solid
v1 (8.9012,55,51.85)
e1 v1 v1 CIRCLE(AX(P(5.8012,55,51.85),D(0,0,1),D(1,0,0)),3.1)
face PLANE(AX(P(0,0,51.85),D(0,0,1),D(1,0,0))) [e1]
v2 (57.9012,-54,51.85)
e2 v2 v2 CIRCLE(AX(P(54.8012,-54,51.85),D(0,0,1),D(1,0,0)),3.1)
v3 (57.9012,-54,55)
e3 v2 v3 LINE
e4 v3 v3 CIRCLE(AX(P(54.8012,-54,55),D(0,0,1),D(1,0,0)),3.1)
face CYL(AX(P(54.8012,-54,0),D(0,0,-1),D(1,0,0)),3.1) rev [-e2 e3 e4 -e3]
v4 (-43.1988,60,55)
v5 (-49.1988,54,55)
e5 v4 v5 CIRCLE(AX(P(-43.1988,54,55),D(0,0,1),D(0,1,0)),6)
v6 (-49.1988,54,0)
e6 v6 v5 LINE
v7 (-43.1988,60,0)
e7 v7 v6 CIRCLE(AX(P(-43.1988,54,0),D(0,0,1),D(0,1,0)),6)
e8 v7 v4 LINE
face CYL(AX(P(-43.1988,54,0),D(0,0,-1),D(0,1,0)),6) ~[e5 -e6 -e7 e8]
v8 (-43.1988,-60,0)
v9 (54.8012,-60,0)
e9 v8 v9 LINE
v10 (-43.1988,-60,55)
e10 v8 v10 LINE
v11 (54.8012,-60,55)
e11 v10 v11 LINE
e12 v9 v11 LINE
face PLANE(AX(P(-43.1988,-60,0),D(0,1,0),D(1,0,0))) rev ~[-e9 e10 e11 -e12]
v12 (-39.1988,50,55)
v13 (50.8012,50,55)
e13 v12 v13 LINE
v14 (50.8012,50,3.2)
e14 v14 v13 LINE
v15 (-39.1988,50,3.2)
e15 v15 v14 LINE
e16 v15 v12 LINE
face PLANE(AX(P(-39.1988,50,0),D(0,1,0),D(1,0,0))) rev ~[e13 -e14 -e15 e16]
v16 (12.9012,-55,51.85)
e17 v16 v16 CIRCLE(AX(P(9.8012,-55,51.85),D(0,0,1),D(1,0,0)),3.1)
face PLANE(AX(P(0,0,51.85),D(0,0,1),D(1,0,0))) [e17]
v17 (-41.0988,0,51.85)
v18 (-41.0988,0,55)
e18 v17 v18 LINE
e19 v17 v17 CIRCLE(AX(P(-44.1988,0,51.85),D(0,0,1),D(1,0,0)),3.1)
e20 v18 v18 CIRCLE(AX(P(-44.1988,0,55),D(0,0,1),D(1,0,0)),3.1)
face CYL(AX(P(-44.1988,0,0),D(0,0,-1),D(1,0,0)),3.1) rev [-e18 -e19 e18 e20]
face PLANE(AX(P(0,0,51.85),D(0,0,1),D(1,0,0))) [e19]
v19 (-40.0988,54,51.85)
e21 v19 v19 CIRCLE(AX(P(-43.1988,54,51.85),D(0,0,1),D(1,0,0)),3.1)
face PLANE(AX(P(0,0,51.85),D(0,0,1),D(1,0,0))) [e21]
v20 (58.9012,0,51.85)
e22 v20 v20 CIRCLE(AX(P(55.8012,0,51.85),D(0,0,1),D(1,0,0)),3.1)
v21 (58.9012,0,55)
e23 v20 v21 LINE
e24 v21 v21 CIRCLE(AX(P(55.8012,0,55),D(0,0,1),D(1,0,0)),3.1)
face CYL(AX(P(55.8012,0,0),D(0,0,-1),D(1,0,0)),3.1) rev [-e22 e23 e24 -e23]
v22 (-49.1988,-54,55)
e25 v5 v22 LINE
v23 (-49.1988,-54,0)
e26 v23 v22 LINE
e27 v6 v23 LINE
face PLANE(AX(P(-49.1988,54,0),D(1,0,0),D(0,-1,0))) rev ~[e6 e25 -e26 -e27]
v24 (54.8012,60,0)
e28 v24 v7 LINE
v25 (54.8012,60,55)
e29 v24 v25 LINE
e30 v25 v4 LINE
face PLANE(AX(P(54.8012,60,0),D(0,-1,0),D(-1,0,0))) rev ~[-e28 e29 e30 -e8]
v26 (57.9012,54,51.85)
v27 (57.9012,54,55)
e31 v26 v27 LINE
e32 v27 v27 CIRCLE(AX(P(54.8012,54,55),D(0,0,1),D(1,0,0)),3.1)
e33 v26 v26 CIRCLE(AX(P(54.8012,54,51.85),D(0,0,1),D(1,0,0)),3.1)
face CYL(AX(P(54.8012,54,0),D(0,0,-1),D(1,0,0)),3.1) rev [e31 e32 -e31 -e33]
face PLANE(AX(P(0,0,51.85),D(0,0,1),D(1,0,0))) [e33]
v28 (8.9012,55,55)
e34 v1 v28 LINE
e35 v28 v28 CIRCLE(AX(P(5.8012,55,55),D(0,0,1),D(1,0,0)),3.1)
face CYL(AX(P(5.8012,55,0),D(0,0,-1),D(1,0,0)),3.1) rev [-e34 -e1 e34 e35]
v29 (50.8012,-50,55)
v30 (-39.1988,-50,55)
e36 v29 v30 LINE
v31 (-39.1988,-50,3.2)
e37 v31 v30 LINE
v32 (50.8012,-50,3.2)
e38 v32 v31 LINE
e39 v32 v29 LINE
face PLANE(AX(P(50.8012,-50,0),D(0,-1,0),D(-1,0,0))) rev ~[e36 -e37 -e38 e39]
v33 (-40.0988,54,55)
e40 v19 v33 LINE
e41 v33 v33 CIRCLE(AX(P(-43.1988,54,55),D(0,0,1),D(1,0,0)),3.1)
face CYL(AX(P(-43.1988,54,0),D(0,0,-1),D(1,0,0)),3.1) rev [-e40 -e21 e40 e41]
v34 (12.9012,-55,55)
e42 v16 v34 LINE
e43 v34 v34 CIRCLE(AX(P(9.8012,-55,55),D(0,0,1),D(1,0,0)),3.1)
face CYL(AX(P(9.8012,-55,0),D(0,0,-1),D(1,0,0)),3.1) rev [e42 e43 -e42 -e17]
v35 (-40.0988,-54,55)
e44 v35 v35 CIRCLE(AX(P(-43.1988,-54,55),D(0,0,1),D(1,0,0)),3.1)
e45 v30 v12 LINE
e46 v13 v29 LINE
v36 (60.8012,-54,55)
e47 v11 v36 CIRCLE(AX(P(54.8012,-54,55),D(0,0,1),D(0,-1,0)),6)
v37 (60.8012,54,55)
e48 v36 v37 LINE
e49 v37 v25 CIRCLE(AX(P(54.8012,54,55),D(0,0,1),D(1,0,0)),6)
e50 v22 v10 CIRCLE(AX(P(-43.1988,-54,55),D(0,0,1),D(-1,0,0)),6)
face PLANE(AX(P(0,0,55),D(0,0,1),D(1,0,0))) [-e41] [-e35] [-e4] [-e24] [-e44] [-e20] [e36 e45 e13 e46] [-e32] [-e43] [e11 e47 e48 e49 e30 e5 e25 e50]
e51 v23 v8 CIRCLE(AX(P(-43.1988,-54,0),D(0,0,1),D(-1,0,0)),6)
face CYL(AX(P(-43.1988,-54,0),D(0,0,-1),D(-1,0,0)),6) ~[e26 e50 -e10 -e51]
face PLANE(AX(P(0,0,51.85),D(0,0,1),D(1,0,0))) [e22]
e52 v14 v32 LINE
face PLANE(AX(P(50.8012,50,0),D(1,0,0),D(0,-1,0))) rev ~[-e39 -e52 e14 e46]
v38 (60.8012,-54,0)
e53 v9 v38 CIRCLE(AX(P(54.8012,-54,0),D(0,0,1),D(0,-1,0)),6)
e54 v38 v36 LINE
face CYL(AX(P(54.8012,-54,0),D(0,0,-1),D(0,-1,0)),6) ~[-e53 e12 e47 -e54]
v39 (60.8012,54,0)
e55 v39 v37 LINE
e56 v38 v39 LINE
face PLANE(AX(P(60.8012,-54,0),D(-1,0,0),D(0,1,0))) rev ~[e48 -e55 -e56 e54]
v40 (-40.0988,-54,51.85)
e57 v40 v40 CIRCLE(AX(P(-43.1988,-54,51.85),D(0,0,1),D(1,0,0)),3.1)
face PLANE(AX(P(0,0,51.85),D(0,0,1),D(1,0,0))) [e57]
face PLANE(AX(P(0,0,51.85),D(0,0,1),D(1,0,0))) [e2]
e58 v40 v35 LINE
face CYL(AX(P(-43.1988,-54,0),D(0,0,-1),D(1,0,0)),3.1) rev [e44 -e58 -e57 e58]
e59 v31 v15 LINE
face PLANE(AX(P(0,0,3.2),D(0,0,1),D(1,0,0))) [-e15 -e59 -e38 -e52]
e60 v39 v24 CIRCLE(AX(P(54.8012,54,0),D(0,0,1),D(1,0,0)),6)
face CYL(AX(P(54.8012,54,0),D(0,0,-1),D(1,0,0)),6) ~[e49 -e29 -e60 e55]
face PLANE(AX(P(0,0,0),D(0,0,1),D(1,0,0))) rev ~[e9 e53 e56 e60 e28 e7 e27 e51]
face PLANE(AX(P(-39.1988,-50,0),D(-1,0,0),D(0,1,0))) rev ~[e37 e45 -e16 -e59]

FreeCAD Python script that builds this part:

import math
import FreeCAD as App
import Part
import Sketcher

V = App.Vector

doc = App.newDocument("Part")
body = doc.addObject("PartDesign::Body", "Body")

# Sketch on XY plane
sketch1 = doc.addObject("Sketcher::SketchObject", "Sketch")
body.addObject(sketch1)
sketch1.AttachmentSupport = (doc.XY_Plane, [""])
sketch1.MapMode = "FlatFace"
sketch1.addGeometry(Part.ArcOfCircle(Part.Circle(V(-43.2, -54, 0), V(0, 0, 1), 6), math.radians(180), math.radians(270)), False)
sketch1.addGeometry(Part.LineSegment(V(-43.2, -60, 0), V(54.8, -60, 0)), False)
sketch1.addGeometry(Part.ArcOfCircle(Part.Circle(V(54.8, -54, 0), V(0, 0, 1), 6), math.radians(-90), math.radians(0)), False)
sketch1.addGeometry(Part.LineSegment(V(60.8, -54, 0), V(60.8, 54, 0)), False)
sketch1.addGeometry(Part.ArcOfCircle(Part.Circle(V(54.8, 54, 0), V(0, 0, 1), 6), math.radians(0), math.radians(90)), False)
sketch1.addGeometry(Part.LineSegment(V(54.8, 60, 0), V(-43.2, 60, 0)), False)
sketch1.addGeometry(Part.ArcOfCircle(Part.Circle(V(-43.2, 54, 0), V(0, 0, 1), 6), math.radians(90), math.radians(180)), False)
sketch1.addGeometry(Part.LineSegment(V(-49.2, 54, 0), V(-49.2, -54, 0)), False)
sketch1.addGeometry(Part.Circle(V(-43.2, -54, 0), V(0, 0, 1), 3.1), False)
sketch1.addGeometry(Part.Circle(V(9.8, -55, 0), V(0, 0, 1), 3.1), False)
sketch1.addGeometry(Part.Circle(V(54.8, -54, 0), V(0, 0, 1), 3.1), False)
sketch1.addGeometry(Part.Circle(V(-44.2, 0, 0), V(0, 0, 1), 3.1), False)
sketch1.addGeometry(Part.Circle(V(-43.2, 54, 0), V(0, 0, 1), 3.1), False)
sketch1.addGeometry(Part.LineSegment(V(-39.2, -50, 0), V(-39.2, 50, 0)), False)
sketch1.addGeometry(Part.LineSegment(V(-39.2, 50, 0), V(50.8, 50, 0)), False)
sketch1.addGeometry(Part.LineSegment(V(50.8, 50, 0), V(50.8, -50, 0)), False)
sketch1.addGeometry(Part.LineSegment(V(50.8, -50, 0), V(-39.2, -50, 0)), False)
sketch1.addGeometry(Part.Circle(V(55.8, 0, 0), V(0, 0, 1), 3.1), False)
sketch1.addGeometry(Part.Circle(V(5.8, 55, 0), V(0, 0, 1), 3.1), False)
sketch1.addGeometry(Part.Circle(V(54.8, 54, 0), V(0, 0, 1), 3.1), False)
sketch1.addConstraint(Sketcher.Constraint("Tangent", 0, 2, 1, 1))
sketch1.addConstraint(Sketcher.Constraint("Tangent", 1, 2, 2, 1))
sketch1.addConstraint(Sketcher.Constraint("Tangent", 2, 2, 3, 1))
sketch1.addConstraint(Sketcher.Constraint("Tangent", 3, 2, 4, 1))
sketch1.addConstraint(Sketcher.Constraint("Tangent", 4, 2, 5, 1))
sketch1.addConstraint(Sketcher.Constraint("Tangent", 5, 2, 6, 1))
sketch1.addConstraint(Sketcher.Constraint("Tangent", 6, 2, 7, 1))
sketch1.addConstraint(Sketcher.Constraint("Tangent", 7, 2, 0, 1))
sketch1.addConstraint(Sketcher.Constraint("Coincident", 13, 2, 14, 1))
sketch1.addConstraint(Sketcher.Constraint("Coincident", 14, 2, 15, 1))
sketch1.addConstraint(Sketcher.Constraint("Coincident", 15, 2, 16, 1))
sketch1.addConstraint(Sketcher.Constraint("Coincident", 16, 2, 13, 1))
sketch1.addConstraint(Sketcher.Constraint("Horizontal", 1))
sketch1.addConstraint(Sketcher.Constraint("Vertical", 3))
sketch1.addConstraint(Sketcher.Constraint("Horizontal", 5))
sketch1.addConstraint(Sketcher.Constraint("Vertical", 7))
sketch1.addConstraint(Sketcher.Constraint("Vertical", 13))
sketch1.addConstraint(Sketcher.Constraint("Horizontal", 14))
sketch1.addConstraint(Sketcher.Constraint("Vertical", 15))
sketch1.addConstraint(Sketcher.Constraint("Horizontal", 16))
sketch1.addConstraint(Sketcher.Constraint("Coincident", 8, 3, 0, 3))
sketch1.addConstraint(Sketcher.Constraint("Coincident", 10, 3, 2, 3))
sketch1.addConstraint(Sketcher.Constraint("Coincident", 12, 3, 6, 3))
sketch1.addConstraint(Sketcher.Constraint("Coincident", 19, 3, 4, 3))
sketch1.addConstraint(Sketcher.Constraint("Equal", 0, 2))
sketch1.addConstraint(Sketcher.Constraint("Equal", 2, 4))
sketch1.addConstraint(Sketcher.Constraint("Equal", 4, 6))
sketch1.addConstraint(Sketcher.Constraint("Equal", 8, 9))
sketch1.addConstraint(Sketcher.Constraint("Equal", 9, 10))
sketch1.addConstraint(Sketcher.Constraint("Equal", 10, 11))
sketch1.addConstraint(Sketcher.Constraint("Equal", 11, 12))
sketch1.addConstraint(Sketcher.Constraint("Equal", 12, 17))
sketch1.addConstraint(Sketcher.Constraint("Equal", 17, 18))
sketch1.addConstraint(Sketcher.Constraint("Equal", 18, 19))
sketch1.addConstraint(Sketcher.Constraint("PointOnObject", 11, 3, -1))
sketch1.addConstraint(Sketcher.Constraint("PointOnObject", 17, 3, -1))
sketch1.addConstraint(Sketcher.Constraint("Radius", 0, 6.0))
sketch1.addConstraint(Sketcher.Constraint("Diameter", 8, 6.2))
sketch1.addConstraint(Sketcher.Constraint("DistanceX", 14, 1, 14, 2, 90.0))
sketch1.addConstraint(Sketcher.Constraint("DistanceY", 9, 3, -1, 1, 55.0))
sketch1.addConstraint(Sketcher.Constraint("DistanceY", -1, 1, 18, 3, 55.0))
sketch1.addConstraint(Sketcher.Constraint("DistanceY", 0, 2, -1, 1, 60.0))
sketch1.addConstraint(Sketcher.Constraint("DistanceY", -1, 1, 4, 2, 60.0))
sketch1.addConstraint(Sketcher.Constraint("DistanceX", 17, 3, 2, 2, 5.0))
sketch1.addConstraint(Sketcher.Constraint("DistanceX", 18, 3, 3, 2, 55.0))
sketch1.addConstraint(Sketcher.Constraint("DistanceX", 6, 2, 11, 3, 5.0))
sketch1.addConstraint(Sketcher.Constraint("DistanceX", 6, 2, 18, 3, 55.0))
sketch1.addConstraint(Sketcher.Constraint("DistanceX", 7, 2, 9, 3, 59.0))
sketch1.addConstraint(Sketcher.Constraint("DistanceY", 13, 2, 5, 2, 10.0))
sketch1.addConstraint(Sketcher.Constraint("DistanceX", 6, 2, 13, 2, 10.0))
sketch1.addConstraint(Sketcher.Constraint("DistanceY", 1, 2, 15, 2, 10.0))
sketch1.addConstraint(Sketcher.Constraint("DistanceX", 0, 3, -1, 1, 43.1988))
pad1 = doc.addObject("PartDesign::Pad", "Pad")
body.addObject(pad1)
pad1.Profile = sketch1
pad1.Length = 55

# Sketch on XY plane
sketch2 = doc.addObject("Sketcher::SketchObject", "Sketch001")
body.addObject(sketch2)
sketch2.AttachmentSupport = (doc.XY_Plane, [""])
sketch2.MapMode = "FlatFace"
sketch2.addGeometry(Part.LineSegment(V(51, 50, 0), V(-39, 50, 0)), False)
sketch2.addGeometry(Part.LineSegment(V(-39, 50, 0), V(-39, -50, 0)), False)
sketch2.addGeometry(Part.LineSegment(V(-39, -50, 0), V(51, -50, 0)), False)
sketch2.addGeometry(Part.LineSegment(V(51, -50, 0), V(51, 50, 0)), False)
sketch2.addConstraint(Sketcher.Constraint("Coincident", 0, 2, 1, 1))
sketch2.addConstraint(Sketcher.Constraint("Coincident", 1, 2, 2, 1))
sketch2.addConstraint(Sketcher.Constraint("Coincident", 2, 2, 3, 1))
sketch2.addConstraint(Sketcher.Constraint("Coincident", 3, 2, 0, 1))
sketch2.addConstraint(Sketcher.Constraint("Horizontal", 0))
sketch2.addConstraint(Sketcher.Constraint("Vertical", 1))
sketch2.addConstraint(Sketcher.Constraint("Horizontal", 2))
sketch2.addConstraint(Sketcher.Constraint("Vertical", 3))
sketch2.addConstraint(Sketcher.Constraint("DistanceX", 0, 2, 0, 1, 90.0))
sketch2.addConstraint(Sketcher.Constraint("DistanceY", 1, 2, 1, 1, 100.0))
sketch2.addConstraint(Sketcher.Constraint("DistanceY", -1, 1, 0, 2, 50.0))
sketch2.addConstraint(Sketcher.Constraint("DistanceX", 0, 2, -1, 1, 39.1988))
pad2 = doc.addObject("PartDesign::Pad", "Pad001")
body.addObject(pad2)
pad2.Profile = sketch2
pad2.Length = 3.2

# Sketch on XY plane
sketch3 = doc.addObject("Sketcher::SketchObject", "Sketch002")
body.addObject(sketch3)
sketch3.AttachmentSupport = (doc.XY_Plane, [""])
sketch3.MapMode = "FlatFace"
sketch3.addGeometry(Part.Circle(V(9.8, -55, 0), V(0, 0, 1), 3.1), False)
sketch3.addGeometry(Part.Circle(V(54.8, -54, 0), V(0, 0, 1), 3.1), False)
sketch3.addGeometry(Part.Circle(V(-43.2, -54, 0), V(0, 0, 1), 3.1), False)
sketch3.addGeometry(Part.Circle(V(55.8, 0, 0), V(0, 0, 1), 3.1), False)
sketch3.addGeometry(Part.Circle(V(54.8, 54, 0), V(0, 0, 1), 3.1), False)
sketch3.addGeometry(Part.Circle(V(-44.2, 0, 0), V(0, 0, 1), 3.1), False)
sketch3.addGeometry(Part.Circle(V(-43.2, 54, 0), V(0, 0, 1), 3.1), False)
sketch3.addGeometry(Part.Circle(V(5.8, 55, 0), V(0, 0, 1), 3.1), False)
sketch3.addConstraint(Sketcher.Constraint("Equal", 0, 1))
sketch3.addConstraint(Sketcher.Constraint("Equal", 1, 2))
sketch3.addConstraint(Sketcher.Constraint("Equal", 2, 3))
sketch3.addConstraint(Sketcher.Constraint("Equal", 3, 4))
sketch3.addConstraint(Sketcher.Constraint("Equal", 4, 5))
sketch3.addConstraint(Sketcher.Constraint("Equal", 5, 6))
sketch3.addConstraint(Sketcher.Constraint("Equal", 6, 7))
sketch3.addConstraint(Sketcher.Constraint("Symmetric", 1, 3, 4, 3, -1))
sketch3.addConstraint(Sketcher.Constraint("Symmetric", 2, 3, 6, 3, -1))
sketch3.addConstraint(Sketcher.Constraint("PointOnObject", 3, 3, -1))
sketch3.addConstraint(Sketcher.Constraint("PointOnObject", 5, 3, -1))
sketch3.addConstraint(Sketcher.Constraint("Horizontal", 1, 3, 2, 3))
sketch3.addConstraint(Sketcher.Constraint("Diameter", 0, 6.2))
sketch3.addConstraint(Sketcher.Constraint("DistanceY", 0, 3, -1, 1, 55.0))
sketch3.addConstraint(Sketcher.Constraint("DistanceY", -1, 1, 7, 3, 55.0))
sketch3.addConstraint(Sketcher.Constraint("DistanceY", 1, 3, -1, 1, 54.0))
sketch3.addConstraint(Sketcher.Constraint("DistanceX", 0, 3, 1, 3, 45.0))
sketch3.addConstraint(Sketcher.Constraint("DistanceX", 2, 3, 0, 3, 53.0))
sketch3.addConstraint(Sketcher.Constraint("DistanceX", 1, 3, 3, 3, 1.0))
sketch3.addConstraint(Sketcher.Constraint("DistanceX", 5, 3, 2, 3, 1.0))
sketch3.addConstraint(Sketcher.Constraint("DistanceX", 7, 3, 4, 3, 49.0))
sketch3.addConstraint(Sketcher.Constraint("DistanceX", -1, 1, 0, 3, 9.8012))
pad3 = doc.addObject("PartDesign::Pad", "Pad002")
body.addObject(pad3)
pad3.Profile = sketch3
pad3.Length = 51.85

doc.recompute()
